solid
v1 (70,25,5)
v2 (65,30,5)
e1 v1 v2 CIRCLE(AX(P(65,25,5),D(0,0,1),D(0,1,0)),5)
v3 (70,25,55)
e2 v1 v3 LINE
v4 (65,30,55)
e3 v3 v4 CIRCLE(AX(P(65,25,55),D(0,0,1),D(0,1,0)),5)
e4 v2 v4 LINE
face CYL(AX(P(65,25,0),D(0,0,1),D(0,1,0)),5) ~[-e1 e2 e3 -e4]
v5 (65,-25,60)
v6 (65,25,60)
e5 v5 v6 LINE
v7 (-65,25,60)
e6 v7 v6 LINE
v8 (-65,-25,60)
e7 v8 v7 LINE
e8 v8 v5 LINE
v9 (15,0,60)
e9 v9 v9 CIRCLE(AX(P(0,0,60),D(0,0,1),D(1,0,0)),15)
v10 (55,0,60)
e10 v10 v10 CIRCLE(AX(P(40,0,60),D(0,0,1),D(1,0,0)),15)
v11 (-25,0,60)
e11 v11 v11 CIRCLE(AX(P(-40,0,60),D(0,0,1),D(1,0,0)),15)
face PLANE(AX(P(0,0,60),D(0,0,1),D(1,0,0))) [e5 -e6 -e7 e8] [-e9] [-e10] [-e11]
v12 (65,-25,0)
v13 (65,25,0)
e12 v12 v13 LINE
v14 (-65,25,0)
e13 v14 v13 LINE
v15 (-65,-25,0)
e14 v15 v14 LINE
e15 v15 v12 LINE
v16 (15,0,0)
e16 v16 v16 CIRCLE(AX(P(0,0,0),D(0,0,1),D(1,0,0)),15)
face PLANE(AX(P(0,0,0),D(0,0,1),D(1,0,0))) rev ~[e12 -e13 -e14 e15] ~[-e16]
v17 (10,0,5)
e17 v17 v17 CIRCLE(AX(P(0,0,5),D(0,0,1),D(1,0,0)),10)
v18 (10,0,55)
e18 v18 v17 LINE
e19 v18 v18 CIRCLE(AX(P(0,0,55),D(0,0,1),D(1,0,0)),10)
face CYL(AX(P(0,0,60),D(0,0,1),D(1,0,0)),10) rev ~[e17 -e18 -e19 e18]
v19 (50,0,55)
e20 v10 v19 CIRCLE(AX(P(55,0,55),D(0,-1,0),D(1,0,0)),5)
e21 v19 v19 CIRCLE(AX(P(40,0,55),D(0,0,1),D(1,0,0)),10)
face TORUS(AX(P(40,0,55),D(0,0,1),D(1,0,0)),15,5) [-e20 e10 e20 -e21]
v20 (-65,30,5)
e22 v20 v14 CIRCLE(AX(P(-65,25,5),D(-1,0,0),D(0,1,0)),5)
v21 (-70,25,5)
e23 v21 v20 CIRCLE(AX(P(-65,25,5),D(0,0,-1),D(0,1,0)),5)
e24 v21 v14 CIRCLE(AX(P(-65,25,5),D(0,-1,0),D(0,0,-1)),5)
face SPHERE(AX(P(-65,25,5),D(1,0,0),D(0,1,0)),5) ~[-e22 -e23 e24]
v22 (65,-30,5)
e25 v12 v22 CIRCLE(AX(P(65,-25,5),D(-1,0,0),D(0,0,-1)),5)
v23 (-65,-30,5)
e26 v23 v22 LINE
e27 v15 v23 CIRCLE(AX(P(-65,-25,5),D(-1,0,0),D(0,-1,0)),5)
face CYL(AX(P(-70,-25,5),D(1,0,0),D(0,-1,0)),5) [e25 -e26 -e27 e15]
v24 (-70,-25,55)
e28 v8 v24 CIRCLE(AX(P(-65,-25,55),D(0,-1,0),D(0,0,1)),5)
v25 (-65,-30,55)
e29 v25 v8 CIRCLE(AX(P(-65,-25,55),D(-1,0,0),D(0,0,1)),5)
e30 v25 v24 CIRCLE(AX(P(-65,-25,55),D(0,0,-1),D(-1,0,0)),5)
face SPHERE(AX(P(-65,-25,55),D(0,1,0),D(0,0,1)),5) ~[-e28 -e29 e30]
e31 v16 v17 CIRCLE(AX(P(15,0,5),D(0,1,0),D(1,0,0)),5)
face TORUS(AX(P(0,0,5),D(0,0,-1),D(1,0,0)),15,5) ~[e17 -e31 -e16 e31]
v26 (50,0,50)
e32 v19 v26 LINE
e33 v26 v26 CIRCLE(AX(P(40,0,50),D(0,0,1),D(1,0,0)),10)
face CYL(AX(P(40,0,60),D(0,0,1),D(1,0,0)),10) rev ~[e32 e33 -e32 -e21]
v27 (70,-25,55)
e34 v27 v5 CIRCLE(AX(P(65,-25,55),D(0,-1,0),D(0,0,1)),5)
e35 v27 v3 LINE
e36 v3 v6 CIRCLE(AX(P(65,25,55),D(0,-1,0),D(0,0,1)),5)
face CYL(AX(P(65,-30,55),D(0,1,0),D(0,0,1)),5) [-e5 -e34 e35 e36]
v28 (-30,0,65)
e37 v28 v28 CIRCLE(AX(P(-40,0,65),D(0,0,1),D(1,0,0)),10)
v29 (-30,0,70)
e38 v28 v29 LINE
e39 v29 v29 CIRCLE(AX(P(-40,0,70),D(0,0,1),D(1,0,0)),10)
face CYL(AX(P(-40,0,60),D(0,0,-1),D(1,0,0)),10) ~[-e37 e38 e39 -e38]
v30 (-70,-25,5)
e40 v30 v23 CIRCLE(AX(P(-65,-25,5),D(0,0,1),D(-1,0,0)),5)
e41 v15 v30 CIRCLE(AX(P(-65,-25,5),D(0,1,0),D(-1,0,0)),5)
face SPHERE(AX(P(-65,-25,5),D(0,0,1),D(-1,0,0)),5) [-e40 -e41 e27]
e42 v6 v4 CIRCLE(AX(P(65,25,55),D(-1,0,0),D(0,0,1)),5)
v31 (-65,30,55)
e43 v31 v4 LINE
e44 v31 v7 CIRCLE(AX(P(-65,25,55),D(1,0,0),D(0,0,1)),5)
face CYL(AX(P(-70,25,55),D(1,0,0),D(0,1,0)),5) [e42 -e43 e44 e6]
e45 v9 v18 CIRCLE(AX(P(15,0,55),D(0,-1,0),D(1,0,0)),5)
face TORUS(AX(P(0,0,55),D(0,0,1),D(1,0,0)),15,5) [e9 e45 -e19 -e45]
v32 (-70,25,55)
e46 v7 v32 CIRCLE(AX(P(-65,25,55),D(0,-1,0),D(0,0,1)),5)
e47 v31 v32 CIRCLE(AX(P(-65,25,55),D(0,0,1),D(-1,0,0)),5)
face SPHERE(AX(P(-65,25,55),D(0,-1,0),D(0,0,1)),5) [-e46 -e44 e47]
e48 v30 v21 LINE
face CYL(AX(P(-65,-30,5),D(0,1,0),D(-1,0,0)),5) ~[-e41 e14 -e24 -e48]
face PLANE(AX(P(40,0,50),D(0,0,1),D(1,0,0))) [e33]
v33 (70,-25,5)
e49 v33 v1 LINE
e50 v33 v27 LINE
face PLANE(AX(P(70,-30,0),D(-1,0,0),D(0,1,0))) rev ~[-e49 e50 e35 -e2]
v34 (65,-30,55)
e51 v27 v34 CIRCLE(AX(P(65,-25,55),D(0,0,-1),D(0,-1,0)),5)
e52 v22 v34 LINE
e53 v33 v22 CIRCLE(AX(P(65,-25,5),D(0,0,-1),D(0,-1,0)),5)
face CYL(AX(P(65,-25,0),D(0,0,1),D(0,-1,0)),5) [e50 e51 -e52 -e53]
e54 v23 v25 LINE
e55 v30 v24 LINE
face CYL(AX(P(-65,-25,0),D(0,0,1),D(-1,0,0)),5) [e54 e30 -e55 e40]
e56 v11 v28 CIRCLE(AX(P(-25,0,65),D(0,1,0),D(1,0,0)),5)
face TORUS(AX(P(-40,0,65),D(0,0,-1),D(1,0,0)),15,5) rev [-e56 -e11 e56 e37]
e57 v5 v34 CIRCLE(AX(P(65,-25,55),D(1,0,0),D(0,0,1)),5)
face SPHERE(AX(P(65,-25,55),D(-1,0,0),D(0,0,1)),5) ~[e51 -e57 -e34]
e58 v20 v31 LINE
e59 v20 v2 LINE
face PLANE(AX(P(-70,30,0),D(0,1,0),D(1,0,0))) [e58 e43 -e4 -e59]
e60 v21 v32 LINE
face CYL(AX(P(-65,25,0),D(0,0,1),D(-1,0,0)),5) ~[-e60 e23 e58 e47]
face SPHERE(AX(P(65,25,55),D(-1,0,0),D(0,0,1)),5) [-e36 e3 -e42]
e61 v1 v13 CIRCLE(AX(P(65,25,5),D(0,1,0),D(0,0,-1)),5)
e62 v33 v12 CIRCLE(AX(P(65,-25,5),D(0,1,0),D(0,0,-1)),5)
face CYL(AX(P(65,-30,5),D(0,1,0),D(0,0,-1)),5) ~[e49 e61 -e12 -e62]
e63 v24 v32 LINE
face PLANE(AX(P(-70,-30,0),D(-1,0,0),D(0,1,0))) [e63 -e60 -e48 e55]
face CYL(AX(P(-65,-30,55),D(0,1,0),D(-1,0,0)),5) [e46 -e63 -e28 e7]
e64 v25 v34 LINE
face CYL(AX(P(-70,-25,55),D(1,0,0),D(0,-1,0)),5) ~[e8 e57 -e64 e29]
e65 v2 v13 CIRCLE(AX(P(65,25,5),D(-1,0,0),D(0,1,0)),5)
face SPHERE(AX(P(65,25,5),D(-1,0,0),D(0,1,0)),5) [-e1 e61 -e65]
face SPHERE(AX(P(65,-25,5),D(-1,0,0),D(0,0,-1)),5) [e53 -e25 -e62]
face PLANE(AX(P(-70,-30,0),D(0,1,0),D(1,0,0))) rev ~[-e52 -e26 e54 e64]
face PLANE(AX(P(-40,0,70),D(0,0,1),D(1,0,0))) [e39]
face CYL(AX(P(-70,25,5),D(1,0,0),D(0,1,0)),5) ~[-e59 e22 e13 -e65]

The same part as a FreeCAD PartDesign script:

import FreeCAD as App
import Part
import Sketcher


def edges_at(feature, points):
    """Names of the edges that pass closest to the given points."""
    edges = feature.Shape.Edges
    near = lambda p: min(range(len(edges)), key=lambda i: edges[i].distToShape(Part.Vertex(*p))[0])
    return sorted({f"Edge{near(p) + 1}" for p in points})


def add_polygon(sketch, points):
    """Adds a closed chain of lines whose ends are joined by coincident constraints."""
    first, n = sketch.GeometryCount, len(points)
    for a, b in zip(points, points[1:] + points[:1]):
        sketch.addGeometry(Part.LineSegment(App.Vector(*a, 0), App.Vector(*b, 0)), False)
    for i in range(n):
        sketch.addConstraint(Sketcher.Constraint("Coincident", first + i, 2, first + (i + 1) % n, 1))

doc = App.newDocument("Part")
params = doc.addObject("Spreadsheet::Sheet", "Params")
for row, (alias, value) in enumerate([
    ("sketch1_width", "140 mm"),
    ("sketch1_height", "60 mm"),
    ("pad1_length", "60 mm"),
    ("sketch2_diameter", "20 mm"),
    ("pad2_length", "10 mm"),
    ("sketch3_diameter", "20 mm"),
    ("pocket1_length", "10 mm"),
    ("sketch4_diameter", "20 mm"),
    ("pocket2_length", "132.8 mm"),
    ("fillet_radius", "5 mm"),
], start=1):
    params.set(f"A{row}", alias)
    params.set(f"B{row}", "=" + value)
    params.setAlias(f"B{row}", alias)

body = doc.addObject("PartDesign::Body", "Body")

# Sketch on XY plane
sketch1 = body.newObject("Sketcher::SketchObject", "Sketch")
sketch1.AttachmentSupport = (doc.getObject("XY_Plane"), [""])
sketch1.MapMode = "FlatFace"
add_polygon(sketch1, [(-70, 30), (-70, -30), (70, -30), (70, 30)])  # lines 0-3
sketch1.addConstraint([
    Sketcher.Constraint("Vertical", 0),
    Sketcher.Constraint("Horizontal", 1),
    Sketcher.Constraint("Vertical", 2),
    Sketcher.Constraint("Horizontal", 3),
    Sketcher.Constraint("Symmetric", 0, 2, 2, 2, -1, 1),
    Sketcher.Constraint("DistanceX", 1, 1, 1, 2, 140.0),
    Sketcher.Constraint("DistanceY", 0, 2, 0, 1, 60.0),
])
sketch1.setExpression("Constraints[9]", "Params.sketch1_width")
sketch1.setExpression("Constraints[10]", "Params.sketch1_height")
pad1 = body.newObject("PartDesign::Pad", "Pad")
pad1.Profile = sketch1
pad1.setExpression("Length", "Params.pad1_length")

# Sketch on XY plane
sketch2 = body.newObject("Sketcher::SketchObject", "Sketch001")
sketch2.AttachmentSupport = (doc.getObject("XY_Plane"), [""])
sketch2.MapMode = "FlatFace"
sketch2.AttachmentOffset = App.Placement(App.Vector(0, 0, 60), App.Rotation())
sketch2.addGeometry(Part.Circle(App.Vector(-40, 0, 0), App.Vector(0, 0, 1), 10), False)
sketch2.addConstraint([
    Sketcher.Constraint("PointOnObject", 0, 3, -1),
    Sketcher.Constraint("Diameter", 0, 20.0),
    Sketcher.Constraint("DistanceX", 0, 3, -1, 1, 40.0),
])
sketch2.setExpression("Constraints[1]", "Params.sketch2_diameter")
pad2 = body.newObject("PartDesign::Pad", "Pad001")
pad2.Profile = sketch2
pad2.setExpression("Length", "Params.pad2_length")

# Sketch on XY plane
sketch3 = body.newObject("Sketcher::SketchObject", "Sketch002")
sketch3.AttachmentSupport = (doc.getObject("XY_Plane"), [""])
sketch3.MapMode = "FlatFace"
sketch3.AttachmentOffset = App.Placement(App.Vector(0, 0, 60), App.Rotation())
sketch3.addGeometry(Part.Circle(App.Vector(40, 0, 0), App.Vector(0, 0, 1), 10), False)
sketch3.addConstraint([
    Sketcher.Constraint("PointOnObject", 0, 3, -1),
    Sketcher.Constraint("Diameter", 0, 20.0),
    Sketcher.Constraint("DistanceX", -1, 1, 0, 3, 40.0),
])
sketch3.setExpression("Constraints[1]", "Params.sketch3_diameter")
pocket1 = body.newObject("PartDesign::Pocket", "Pocket")
pocket1.Profile = sketch3
pocket1.setExpression("Length", "Params.pocket1_length")

# Sketch on XY plane
sketch4 = body.newObject("Sketcher::SketchObject", "Sketch003")
sketch4.AttachmentSupport = (doc.getObject("XY_Plane"), [""])
sketch4.MapMode = "FlatFace"
sketch4.AttachmentOffset = App.Placement(App.Vector(0, 0, 60), App.Rotation())
sketch4.addGeometry(Part.Circle(App.Vector(0, 0, 0), App.Vector(0, 0, 1), 10), False)
sketch4.addConstraint([
    Sketcher.Constraint("Coincident", 0, 3, -1, 1),
    Sketcher.Constraint("Diameter", 0, 20.0),
])
sketch4.setExpression("Constraints[1]", "Params.sketch4_diameter")
pocket2 = body.newObject("PartDesign::Pocket", "Pocket001")
pocket2.Profile = sketch4
pocket2.setExpression("Length", "Params.pocket2_length")
doc.recompute()

fillet = body.newObject("PartDesign::Fillet", "Fillet")
fillet.Base = (pocket2, edges_at(pocket2, [
    (-70, 0, 60),
    (0, 30, 60),
    (0, -30, 60),
    (70, 0, 60),
    (-50, 0, 60),
    (-10, 0, 60),
    (30, 0, 60),
    (0, 30, 0),
    (-70, 30, 30),
    (70, 30, 30),
    (-70, -30, 30),
    (-70, 0, 0),
    (0, -30, 0),
    (-10, 0, 0),
    (70, 0, 0),
    (70, -30, 30),
]))
fillet.setExpression("Radius", "Params.fillet_radius")

doc.recompute()
